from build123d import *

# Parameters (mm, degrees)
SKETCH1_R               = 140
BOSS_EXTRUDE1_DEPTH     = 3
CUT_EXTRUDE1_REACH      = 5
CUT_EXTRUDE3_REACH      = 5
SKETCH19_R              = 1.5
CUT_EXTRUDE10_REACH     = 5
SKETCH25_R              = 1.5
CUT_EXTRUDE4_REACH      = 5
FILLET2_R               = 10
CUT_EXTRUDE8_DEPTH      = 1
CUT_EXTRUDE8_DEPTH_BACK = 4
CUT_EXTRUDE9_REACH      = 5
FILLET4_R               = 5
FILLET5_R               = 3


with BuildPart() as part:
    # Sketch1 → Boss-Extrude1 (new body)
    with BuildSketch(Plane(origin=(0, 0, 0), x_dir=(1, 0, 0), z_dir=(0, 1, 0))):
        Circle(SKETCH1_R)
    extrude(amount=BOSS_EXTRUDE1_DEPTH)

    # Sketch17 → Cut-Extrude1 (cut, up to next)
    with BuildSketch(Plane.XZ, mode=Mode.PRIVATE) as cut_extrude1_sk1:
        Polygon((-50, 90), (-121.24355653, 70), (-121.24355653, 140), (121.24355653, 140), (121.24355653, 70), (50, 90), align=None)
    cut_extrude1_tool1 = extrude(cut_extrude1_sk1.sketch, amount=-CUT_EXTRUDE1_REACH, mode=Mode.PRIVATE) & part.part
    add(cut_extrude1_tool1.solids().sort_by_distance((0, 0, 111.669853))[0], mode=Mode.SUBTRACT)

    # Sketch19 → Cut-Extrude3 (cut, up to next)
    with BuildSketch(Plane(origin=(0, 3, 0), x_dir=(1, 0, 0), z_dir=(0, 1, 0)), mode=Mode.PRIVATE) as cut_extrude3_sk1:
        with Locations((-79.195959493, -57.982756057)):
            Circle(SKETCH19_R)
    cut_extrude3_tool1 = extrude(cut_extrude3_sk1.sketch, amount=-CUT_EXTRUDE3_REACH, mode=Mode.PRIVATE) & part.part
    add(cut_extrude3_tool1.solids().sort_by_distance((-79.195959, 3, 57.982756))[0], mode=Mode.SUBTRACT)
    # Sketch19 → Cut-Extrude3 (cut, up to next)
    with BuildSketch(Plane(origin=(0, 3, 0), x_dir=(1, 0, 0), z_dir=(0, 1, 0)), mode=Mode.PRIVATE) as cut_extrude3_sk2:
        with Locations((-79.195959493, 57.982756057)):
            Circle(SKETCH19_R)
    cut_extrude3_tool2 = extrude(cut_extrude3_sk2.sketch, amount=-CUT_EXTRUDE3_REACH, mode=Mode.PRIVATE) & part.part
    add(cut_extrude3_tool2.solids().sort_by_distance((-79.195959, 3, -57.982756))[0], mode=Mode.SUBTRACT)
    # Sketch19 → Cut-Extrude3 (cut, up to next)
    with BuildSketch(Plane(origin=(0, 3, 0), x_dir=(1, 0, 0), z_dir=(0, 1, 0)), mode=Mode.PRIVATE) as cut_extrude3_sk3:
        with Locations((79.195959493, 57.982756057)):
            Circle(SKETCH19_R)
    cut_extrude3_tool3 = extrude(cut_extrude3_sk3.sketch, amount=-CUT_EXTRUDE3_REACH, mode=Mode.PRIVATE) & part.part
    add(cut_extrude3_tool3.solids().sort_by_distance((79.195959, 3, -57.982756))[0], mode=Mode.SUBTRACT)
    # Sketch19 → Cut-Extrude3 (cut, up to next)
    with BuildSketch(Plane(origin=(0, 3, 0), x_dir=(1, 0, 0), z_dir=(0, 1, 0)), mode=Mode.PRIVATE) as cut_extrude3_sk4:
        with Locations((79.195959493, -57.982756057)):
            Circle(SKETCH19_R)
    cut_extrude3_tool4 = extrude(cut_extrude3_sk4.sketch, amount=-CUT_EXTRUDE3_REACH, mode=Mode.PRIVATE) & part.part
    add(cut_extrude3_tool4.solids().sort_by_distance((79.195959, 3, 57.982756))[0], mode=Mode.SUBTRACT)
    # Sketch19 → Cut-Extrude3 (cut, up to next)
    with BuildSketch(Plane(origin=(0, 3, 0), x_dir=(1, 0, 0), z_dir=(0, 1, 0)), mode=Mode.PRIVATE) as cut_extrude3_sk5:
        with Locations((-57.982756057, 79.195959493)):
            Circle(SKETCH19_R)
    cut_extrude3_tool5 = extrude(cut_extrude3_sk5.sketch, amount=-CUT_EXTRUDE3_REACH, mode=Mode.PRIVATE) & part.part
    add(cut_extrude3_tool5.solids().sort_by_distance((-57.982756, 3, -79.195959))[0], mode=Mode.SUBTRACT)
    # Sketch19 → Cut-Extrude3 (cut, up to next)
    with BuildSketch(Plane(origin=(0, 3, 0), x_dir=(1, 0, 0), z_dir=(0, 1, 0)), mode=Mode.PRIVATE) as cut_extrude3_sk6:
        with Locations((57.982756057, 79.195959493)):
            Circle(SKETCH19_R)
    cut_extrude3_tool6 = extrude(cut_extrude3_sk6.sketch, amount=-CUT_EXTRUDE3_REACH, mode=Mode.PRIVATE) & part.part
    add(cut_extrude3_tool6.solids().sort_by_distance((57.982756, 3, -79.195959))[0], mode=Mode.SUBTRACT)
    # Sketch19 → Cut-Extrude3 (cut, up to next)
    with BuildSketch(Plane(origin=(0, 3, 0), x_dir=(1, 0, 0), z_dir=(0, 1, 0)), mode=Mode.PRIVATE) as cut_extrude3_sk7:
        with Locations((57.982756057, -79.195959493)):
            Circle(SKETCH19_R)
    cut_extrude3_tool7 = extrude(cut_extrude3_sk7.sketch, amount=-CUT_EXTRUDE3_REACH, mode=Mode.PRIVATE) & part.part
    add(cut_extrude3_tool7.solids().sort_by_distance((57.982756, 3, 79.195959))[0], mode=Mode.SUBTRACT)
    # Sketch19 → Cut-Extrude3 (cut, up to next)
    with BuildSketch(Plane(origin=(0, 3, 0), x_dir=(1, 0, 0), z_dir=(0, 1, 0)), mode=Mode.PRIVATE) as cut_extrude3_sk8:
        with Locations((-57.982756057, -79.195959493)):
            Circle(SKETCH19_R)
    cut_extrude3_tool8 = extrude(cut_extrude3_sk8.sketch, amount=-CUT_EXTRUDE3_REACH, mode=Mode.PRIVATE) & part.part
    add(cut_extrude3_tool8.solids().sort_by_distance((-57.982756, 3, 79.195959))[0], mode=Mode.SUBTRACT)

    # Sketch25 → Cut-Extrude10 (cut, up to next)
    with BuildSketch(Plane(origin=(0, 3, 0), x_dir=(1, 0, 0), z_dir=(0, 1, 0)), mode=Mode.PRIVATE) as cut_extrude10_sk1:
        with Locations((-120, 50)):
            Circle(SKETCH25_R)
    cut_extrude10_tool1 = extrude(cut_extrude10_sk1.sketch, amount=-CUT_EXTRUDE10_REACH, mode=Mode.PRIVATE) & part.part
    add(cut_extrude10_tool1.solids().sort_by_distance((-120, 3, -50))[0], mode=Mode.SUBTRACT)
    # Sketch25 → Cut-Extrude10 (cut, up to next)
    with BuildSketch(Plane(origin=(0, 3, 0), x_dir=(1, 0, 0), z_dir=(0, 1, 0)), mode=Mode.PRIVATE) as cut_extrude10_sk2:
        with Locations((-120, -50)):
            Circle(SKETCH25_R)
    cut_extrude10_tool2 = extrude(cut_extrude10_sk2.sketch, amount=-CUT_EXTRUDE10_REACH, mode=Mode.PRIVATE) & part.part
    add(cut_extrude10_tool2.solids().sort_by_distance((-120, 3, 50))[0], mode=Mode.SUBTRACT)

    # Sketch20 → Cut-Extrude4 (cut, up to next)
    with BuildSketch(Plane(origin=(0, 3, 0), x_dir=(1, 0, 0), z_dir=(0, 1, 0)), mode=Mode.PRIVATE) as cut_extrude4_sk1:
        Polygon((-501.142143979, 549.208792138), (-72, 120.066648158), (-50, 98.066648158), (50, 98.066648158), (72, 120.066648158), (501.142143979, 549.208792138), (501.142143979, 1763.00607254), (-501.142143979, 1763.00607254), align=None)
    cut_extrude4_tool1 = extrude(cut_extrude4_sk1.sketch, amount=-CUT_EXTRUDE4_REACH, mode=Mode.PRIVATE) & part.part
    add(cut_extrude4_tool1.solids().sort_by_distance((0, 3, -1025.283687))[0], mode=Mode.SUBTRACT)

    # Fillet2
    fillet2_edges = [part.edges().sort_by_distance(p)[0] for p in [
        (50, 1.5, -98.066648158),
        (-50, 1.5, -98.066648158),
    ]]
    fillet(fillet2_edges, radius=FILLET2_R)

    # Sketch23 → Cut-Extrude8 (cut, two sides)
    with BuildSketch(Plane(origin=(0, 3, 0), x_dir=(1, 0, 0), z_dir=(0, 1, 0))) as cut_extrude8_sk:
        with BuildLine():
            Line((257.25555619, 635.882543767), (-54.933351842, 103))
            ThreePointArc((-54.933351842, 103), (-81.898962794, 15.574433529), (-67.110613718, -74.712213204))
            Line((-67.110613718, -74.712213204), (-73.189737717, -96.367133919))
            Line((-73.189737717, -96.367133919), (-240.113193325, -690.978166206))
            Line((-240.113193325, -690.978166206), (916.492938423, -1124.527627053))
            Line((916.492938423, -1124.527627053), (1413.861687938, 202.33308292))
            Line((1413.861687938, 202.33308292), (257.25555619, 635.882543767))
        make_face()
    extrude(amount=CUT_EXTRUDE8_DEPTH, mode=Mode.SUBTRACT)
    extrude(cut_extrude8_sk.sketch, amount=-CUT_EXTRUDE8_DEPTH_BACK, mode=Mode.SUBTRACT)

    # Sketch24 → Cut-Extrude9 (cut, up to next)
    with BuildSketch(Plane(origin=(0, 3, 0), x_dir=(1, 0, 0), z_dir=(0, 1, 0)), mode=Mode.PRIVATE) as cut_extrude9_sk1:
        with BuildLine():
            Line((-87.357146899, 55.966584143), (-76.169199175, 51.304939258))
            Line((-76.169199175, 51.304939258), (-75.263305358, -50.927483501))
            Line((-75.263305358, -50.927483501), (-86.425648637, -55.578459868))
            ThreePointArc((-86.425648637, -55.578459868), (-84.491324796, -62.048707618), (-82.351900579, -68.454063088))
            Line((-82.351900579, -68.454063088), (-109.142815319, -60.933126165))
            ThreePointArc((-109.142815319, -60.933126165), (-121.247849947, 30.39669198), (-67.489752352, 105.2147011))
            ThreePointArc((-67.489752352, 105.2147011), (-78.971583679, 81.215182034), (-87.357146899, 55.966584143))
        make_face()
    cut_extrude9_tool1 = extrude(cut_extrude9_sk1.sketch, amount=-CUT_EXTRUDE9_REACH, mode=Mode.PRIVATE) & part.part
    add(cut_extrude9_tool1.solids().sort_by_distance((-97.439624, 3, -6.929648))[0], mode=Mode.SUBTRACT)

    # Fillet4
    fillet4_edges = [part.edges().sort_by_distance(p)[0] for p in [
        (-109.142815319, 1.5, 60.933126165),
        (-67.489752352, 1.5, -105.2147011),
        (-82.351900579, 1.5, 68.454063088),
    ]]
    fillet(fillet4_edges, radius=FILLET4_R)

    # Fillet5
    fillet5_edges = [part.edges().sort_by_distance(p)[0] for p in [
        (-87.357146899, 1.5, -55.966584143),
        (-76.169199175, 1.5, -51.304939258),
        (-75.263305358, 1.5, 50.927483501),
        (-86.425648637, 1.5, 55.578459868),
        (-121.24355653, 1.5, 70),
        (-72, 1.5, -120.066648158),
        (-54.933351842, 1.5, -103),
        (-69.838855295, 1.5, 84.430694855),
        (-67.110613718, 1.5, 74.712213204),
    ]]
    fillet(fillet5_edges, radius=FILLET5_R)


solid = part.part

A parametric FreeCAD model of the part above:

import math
import FreeCAD as App
import Part
import Sketcher


def edges_at(feature, points):
    """Names of the edges that pass closest to the given points."""
    edges = feature.Shape.Edges
    near = lambda p: min(range(len(edges)), key=lambda i: edges[i].distToShape(Part.Vertex(*p))[0])
    return sorted({f"Edge{near(p) + 1}" for p in points})


def add_polygon(sketch, points):
    """Adds a closed chain of lines whose ends are joined by coincident constraints."""
    first, n = sketch.GeometryCount, len(points)
    for a, b in zip(points, points[1:] + points[:1]):
        sketch.addGeometry(Part.LineSegment(App.Vector(*a, 0), App.Vector(*b, 0)), False)
    for i in range(n):
        sketch.addConstraint(Sketcher.Constraint("Coincident", first + i, 2, first + (i + 1) % n, 1))

doc = App.newDocument("Part")
body = doc.addObject("PartDesign::Body", "Body")

sketch1 = body.newObject("Sketcher::SketchObject", "Sketch")
sketch1.AttachmentSupport = (doc.getObject("XZ_Plane"), [""])
sketch1.MapMode = "FlatFace"
sketch1.addGeometry(Part.Circle(App.Vector(0, 0, 0), App.Vector(0, 0, 1), 140), False)
sketch1.addConstraint([
    Sketcher.Constraint("Coincident", 0, 3, -1, 1),
    Sketcher.Constraint("Diameter", 0, 280.0),
])
pad1 = body.newObject("PartDesign::Pad", "Pad")
pad1.Profile = sketch1
pad1.Length = 3
pad1.Reversed = True

sketch2 = body.newObject("Sketcher::SketchObject", "Sketch001")
sketch2.AttachmentSupport = (doc.getObject("XZ_Plane"), [""])
sketch2.MapMode = "FlatFace"
add_polygon(sketch2, [(-121.243557, 70), (-50, 90), (50, 90), (121.243557, 70), (121.243557, 140), (-121.243557, 140)])
sketch2.addConstraint([
    Sketcher.Constraint("Horizontal", 1),
    Sketcher.Constraint("Vertical", 3),
    Sketcher.Constraint("Horizontal", 4),
    Sketcher.Constraint("Vertical", 5),
    Sketcher.Constraint("Symmetric", 2, 2, 5, 2, -2),
    Sketcher.Constraint("Equal", 0, 2),
    Sketcher.Constraint("DistanceX", 1, 1, 1, 2, 100.0),
    Sketcher.Constraint("DistanceY", 3, 1, 3, 2, 70.0),
    Sketcher.Constraint("DistanceY", -1, 1, 0, 2, 90.0),
    Sketcher.Constraint("DistanceY", -1, 1, 2, 2, 70.0),
    Sketcher.Constraint("DistanceX", 4, 2, 4, 1, 242.487113),
])
pocket1 = body.newObject("PartDesign::Pocket", "Pocket")
pocket1.Profile = sketch2
pocket1.Type = "UpToFirst"

sketch3 = body.newObject("Sketcher::SketchObject", "Sketch002")
sketch3.AttachmentSupport = (doc.getObject("XZ_Plane"), [""])
sketch3.MapMode = "FlatFace"
sketch3.AttachmentOffset = App.Placement(App.Vector(0, 0, -3), App.Rotation())
sketch3.addGeometry(Part.Circle(App.Vector(-79.195959, 57.982756, 0), App.Vector(0, 0, 1), 1.5), False)
sketch3.addConstraint([
    Sketcher.Constraint("Diameter", 0, 3.0),
    Sketcher.Constraint("DistanceX", 0, 3, -1, 1, 79.195959),
    Sketcher.Constraint("DistanceY", -1, 1, 0, 3, 57.982756),
])
pocket2 = body.newObject("PartDesign::Pocket", "Pocket001")
pocket2.Profile = sketch3
pocket2.Type = "UpToFirst"
pocket2.Reversed = True

sketch4 = body.newObject("Sketcher::SketchObject", "Sketch003")
sketch4.AttachmentSupport = (doc.getObject("XZ_Plane"), [""])
sketch4.MapMode = "FlatFace"
sketch4.AttachmentOffset = App.Placement(App.Vector(0, 0, -3), App.Rotation())
sketch4.addGeometry(Part.Circle(App.Vector(-79.195959, -57.982756, 0), App.Vector(0, 0, 1), 1.5), False)
sketch4.addConstraint([
    Sketcher.Constraint("Diameter", 0, 3.0),
    Sketcher.Constraint("DistanceX", 0, 3, -1, 1, 79.195959),
    Sketcher.Constraint("DistanceY", 0, 3, -1, 1, 57.982756),
])
pocket3 = body.newObject("PartDesign::Pocket", "Pocket002")
pocket3.Profile = sketch4
pocket3.Type = "UpToFirst"
pocket3.Reversed = True

sketch5 = body.newObject("Sketcher::SketchObject", "Sketch004")
sketch5.AttachmentSupport = (doc.getObject("XZ_Plane"), [""])
sketch5.MapMode = "FlatFace"
sketch5.AttachmentOffset = App.Placement(App.Vector(0, 0, -3), App.Rotation())
sketch5.addGeometry(Part.Circle(App.Vector(79.195959, -57.982756, 0), App.Vector(0, 0, 1), 1.5), False)
sketch5.addConstraint([
    Sketcher.Constraint("Diameter", 0, 3.0),
    Sketcher.Constraint("DistanceX", -1, 1, 0, 3, 79.195959),
    Sketcher.Constraint("DistanceY", 0, 3, -1, 1, 57.982756),
])
pocket4 = body.newObject("PartDesign::Pocket", "Pocket003")
pocket4.Profile = sketch5
pocket4.Type = "UpToFirst"
pocket4.Reversed = True

sketch6 = body.newObject("Sketcher::SketchObject", "Sketch005")
sketch6.AttachmentSupport = (doc.getObject("XZ_Plane"), [""])
sketch6.MapMode = "FlatFace"
sketch6.AttachmentOffset = App.Placement(App.Vector(0, 0, -3), App.Rotation())
sketch6.addGeometry(Part.Circle(App.Vector(79.195959, 57.982756, 0), App.Vector(0, 0, 1), 1.5), False)
sketch6.addConstraint([
    Sketcher.Constraint("Diameter", 0, 3.0),
    Sketcher.Constraint("DistanceX", -1, 1, 0, 3, 79.195959),
    Sketcher.Constraint("DistanceY", -1, 1, 0, 3, 57.982756),
])
pocket5 = body.newObject("PartDesign::Pocket", "Pocket004")
pocket5.Profile = sketch6
pocket5.Type = "UpToFirst"
pocket5.Reversed = True

sketch7 = body.newObject("Sketcher::SketchObject", "Sketch006")
sketch7.AttachmentSupport = (doc.getObject("XZ_Plane"), [""])
sketch7.MapMode = "FlatFace"
sketch7.AttachmentOffset = App.Placement(App.Vector(0, 0, -3), App.Rotation())
sketch7.addGeometry(Part.Circle(App.Vector(-57.982756, -79.195959, 0), App.Vector(0, 0, 1), 1.5), False)
sketch7.addConstraint([
    Sketcher.Constraint("Diameter", 0, 3.0),
    Sketcher.Constraint("DistanceY", 0, 3, -1, 1, 79.195959),
    Sketcher.Constraint("DistanceX", 0, 3, -1, 1, 57.982756),
])
pocket6 = body.newObject("PartDesign::Pocket", "Pocket005")
pocket6.Profile = sketch7
pocket6.Type = "UpToFirst"
pocket6.Reversed = True

sketch8 = body.newObject("Sketcher::SketchObject", "Sketch007")
sketch8.AttachmentSupport = (doc.getObject("XZ_Plane"), [""])
sketch8.MapMode = "FlatFace"
sketch8.AttachmentOffset = App.Placement(App.Vector(0, 0, -3), App.Rotation())
sketch8.addGeometry(Part.Circle(App.Vector(57.982756, -79.195959, 0), App.Vector(0, 0, 1), 1.5), False)
sketch8.addConstraint([
    Sketcher.Constraint("Diameter", 0, 3.0),
    Sketcher.Constraint("DistanceY", 0, 3, -1, 1, 79.195959),
    Sketcher.Constraint("DistanceX", -1, 1, 0, 3, 57.982756),
])
pocket7 = body.newObject("PartDesign::Pocket", "Pocket006")
pocket7.Profile = sketch8
pocket7.Type = "UpToFirst"
pocket7.Reversed = True

sketch9 = body.newObject("Sketcher::SketchObject", "Sketch008")
sketch9.AttachmentSupport = (doc.getObject("XZ_Plane"), [""])
sketch9.MapMode = "FlatFace"
sketch9.AttachmentOffset = App.Placement(App.Vector(0, 0, -3), App.Rotation())
sketch9.addGeometry(Part.Circle(App.Vector(57.982756, 79.195959, 0), App.Vector(0, 0, 1), 1.5), False)
sketch9.addConstraint([
    Sketcher.Constraint("Diameter", 0, 3.0),
    Sketcher.Constraint("DistanceY", -1, 1, 0, 3, 79.195959),
    Sketcher.Constraint("DistanceX", -1, 1, 0, 3, 57.982756),
])
pocket8 = body.newObject("PartDesign::Pocket", "Pocket007")
pocket8.Profile = sketch9
pocket8.Type = "UpToFirst"
pocket8.Reversed = True

sketch10 = body.newObject("Sketcher::SketchObject", "Sketch009")
sketch10.AttachmentSupport = (doc.getObject("XZ_Plane"), [""])
sketch10.MapMode = "FlatFace"
sketch10.AttachmentOffset = App.Placement(App.Vector(0, 0, -3), App.Rotation())
sketch10.addGeometry(Part.Circle(App.Vector(-57.982756, 79.195959, 0), App.Vector(0, 0, 1), 1.5), False)
sketch10.addConstraint([
    Sketcher.Constraint("Diameter", 0, 3.0),
    Sketcher.Constraint("DistanceY", -1, 1, 0, 3, 79.195959),
    Sketcher.Constraint("DistanceX", 0, 3, -1, 1, 57.982756),
])
pocket9 = body.newObject("PartDesign::Pocket", "Pocket008")
pocket9.Profile = sketch10
pocket9.Type = "UpToFirst"
pocket9.Reversed = True

sketch11 = body.newObject("Sketcher::SketchObject", "Sketch010")
sketch11.AttachmentSupport = (doc.getObject("XZ_Plane"), [""])
sketch11.MapMode = "FlatFace"
sketch11.AttachmentOffset = App.Placement(App.Vector(0, 0, -3), App.Rotation())
sketch11.addGeometry(Part.Circle(App.Vector(-120, -50, 0), App.Vector(0, 0, 1), 1.5), False)
sketch11.addConstraint([
    Sketcher.Constraint("Diameter", 0, 3.0),
    Sketcher.Constraint("DistanceX", 0, 3, -1, 1, 120.0),
    Sketcher.Constraint("DistanceY", 0, 3, -1, 1, 50.0),
])
pocket10 = body.newObject("PartDesign::Pocket", "Pocket009")
pocket10.Profile = sketch11
pocket10.Type = "UpToFirst"
pocket10.Reversed = True

sketch12 = body.newObject("Sketcher::SketchObject", "Sketch011")
sketch12.AttachmentSupport = (doc.getObject("XZ_Plane"), [""])
sketch12.MapMode = "FlatFace"
sketch12.AttachmentOffset = App.Placement(App.Vector(0, 0, -3), App.Rotation())
sketch12.addGeometry(Part.Circle(App.Vector(-120, 50, 0), App.Vector(0, 0, 1), 1.5), False)
sketch12.addConstraint([
    Sketcher.Constraint("Diameter", 0, 3.0),
    Sketcher.Constraint("DistanceX", 0, 3, -1, 1, 120.0),
    Sketcher.Constraint("DistanceY", -1, 1, 0, 3, 50.0),
])
pocket11 = body.newObject("PartDesign::Pocket", "Pocket010")
pocket11.Profile = sketch12
pocket11.Type = "UpToFirst"
pocket11.Reversed = True

sketch13 = body.newObject("Sketcher::SketchObject", "Sketch012")
sketch13.AttachmentSupport = (doc.getObject("XZ_Plane"), [""])
sketch13.MapMode = "FlatFace"
sketch13.AttachmentOffset = App.Placement(App.Vector(0, 0, -3), App.Rotation())
add_polygon(sketch13, [(-501.142144, -549.208792), (-72, -120.066648), (-50, -98.066648), (50, -98.066648), (72, -120.066648), (501.142144, -549.208792), (501.142144, -1763.006073), (-501.142144, -1763.006073)])
sketch13.addConstraint([
    Sketcher.Constraint("Horizontal", 2),
    Sketcher.Constraint("Vertical", 5),
    Sketcher.Constraint("Horizontal", 6),
    Sketcher.Constraint("Vertical", 7),
    Sketcher.Constraint("Symmetric", 0, 2, 3, 2, -2),
    Sketcher.Constraint("Symmetric", 4, 2, 7, 2, -2),
    Sketcher.Constraint("Parallel", 0, 1),
    Sketcher.Constraint("Perpendicular", 1, 3),
    Sketcher.Constraint("Parallel", 3, 4),
    Sketcher.Constraint("DistanceX", 2, 1, 2, 2, 100.0),
    Sketcher.Constraint("DistanceX", 0, 2, -1, 1, 72.0),
    Sketcher.Constraint("DistanceY", 5, 2, 5, 1, 1213.79728),
    Sketcher.Constraint("Distance", 0, 606.89864),
    Sketcher.Constraint("DistanceY", 0, 2, -1, 1, 120.066648),
])
pocket12 = body.newObject("PartDesign::Pocket", "Pocket011")
pocket12.Profile = sketch13
pocket12.Length = 3
pocket12.Reversed = True
doc.recompute()

fillet = body.newObject("PartDesign::Fillet", "Fillet")
fillet.Base = (pocket12, edges_at(pocket12, [(50, 1.5, -98.067), (-50, 1.5, -98.067)]))
fillet.Radius = 10

sketch14 = body.newObject("Sketcher::SketchObject", "Sketch013")
sketch14.AttachmentSupport = (doc.getObject("XZ_Plane"), [""])
sketch14.MapMode = "FlatFace"
sketch14.AttachmentOffset = App.Placement(App.Vector(0, 0, -3), App.Rotation())
sketch14.addGeometry([
    Part.LineSegment(App.Vector(257.255556, -635.882544, 0), App.Vector(-54.933352, -103, 0)),
    Part.ArcOfCircle(Part.Circle(App.Vector(117.633153, -1.90202, 0), App.Vector(0, 0, 1), 200), math.radians(157.475952), math.radians(210.363878)),
    Part.LineSegment(App.Vector(-67.110614, 74.712213, 0), App.Vector(-73.189738, 96.367134, 0)),
    Part.LineSegment(App.Vector(-73.189738, 96.367134, 0), App.Vector(-240.113193, 690.978166, 0)),
    Part.LineSegment(App.Vector(-240.113193, 690.978166, 0), App.Vector(916.492938, 1124.527627, 0)),
    Part.LineSegment(App.Vector(916.492938, 1124.527627, 0), App.Vector(1413.861688, -202.333083, 0)),
    Part.LineSegment(App.Vector(1413.861688, -202.333083, 0), App.Vector(257.255556, -635.882544, 0)),
], False)
sketch14.addConstraint([
    Sketcher.Constraint("Tangent", 0, 2, 1, 2),
    Sketcher.Constraint("Coincident", 1, 1, 2, 1),
    Sketcher.Constraint("Coincident", 2, 2, 3, 1),
    Sketcher.Constraint("Coincident", 3, 2, 4, 1),
    Sketcher.Constraint("Coincident", 4, 2, 5, 1),
    Sketcher.Constraint("Coincident", 5, 2, 6, 1),
    Sketcher.Constraint("Coincident", 6, 2, 0, 1),
    Sketcher.Constraint("Parallel", 2, 3),
    Sketcher.Constraint("Perpendicular", 4, 5),
    Sketcher.Constraint("Perpendicular", 5, 6),
    Sketcher.Constraint("Equal", 0, 3),
    Sketcher.Constraint("Equal", 4, 6),
    Sketcher.Constraint("Radius", 1, 200.0),
    Sketcher.Constraint("DistanceY", 0, 2, -1, 1, 103.0),
    Sketcher.Constraint("DistanceX", 1, 1, 5, 2, 1480.972302),
    Sketcher.Constraint("Distance", 0, 617.596729),
    Sketcher.Constraint("Distance", 2, 22.492028),
    Sketcher.Constraint("Distance", 4, 1235.193458),
    Sketcher.Constraint("DistanceY", 1, 3, -1, 1, 1.90202),
    Sketcher.Constraint("DistanceX", 0, 2, -1, 1, 54.933352),
    Sketcher.Constraint("DistanceX", -1, 1, 4, 2, 916.492938),
])
pocket13 = body.newObject("PartDesign::Pocket", "Pocket012")
pocket13.Profile = sketch14
pocket13.Type = "ThroughAll"
pocket13.Midplane = True

sketch15 = body.newObject("Sketcher::SketchObject", "Sketch014")
sketch15.AttachmentSupport = (doc.getObject("XZ_Plane"), [""])
sketch15.MapMode = "FlatFace"
sketch15.AttachmentOffset = App.Placement(App.Vector(0, 0, -3), App.Rotation())
sketch15.addGeometry([
    Part.LineSegment(App.Vector(-76.169199, -51.304939, 0), App.Vector(-87.357147, -55.966584, 0)),
    Part.ArcOfCircle(Part.Circle(App.Vector(117.633153, -1.90202, 0), App.Vector(0, 0, 1), 212), math.radians(-165.225139), math.radians(-150.835155)),
    Part.ArcOfCircle(Part.Circle(App.Vector(0, 0, 0), App.Vector(0, 0, 1), 125), math.radians(150.8259), math.radians(237.321942)),
    Part.LineSegment(App.Vector(-109.142815, 60.933126, 0), App.Vector(-82.351901, 68.454063, 0)),
    Part.ArcOfCircle(Part.Circle(App.Vector(117.633152, -1.90202, 0), App.Vector(0, 0, 1), 211.999999), math.radians(160.617786), math.radians(164.268222)),
    Part.LineSegment(App.Vector(-86.425649, 55.57846, 0), App.Vector(-75.263305, 50.927484, 0)),
    Part.LineSegment(App.Vector(-75.263305, 50.927484, 0), App.Vector(-76.169199, -51.304939, 0)),
], False)
sketch15.addConstraint([
    Sketcher.Constraint("Coincident", 0, 2, 1, 1),
    Sketcher.Constraint("Coincident", 1, 2, 2, 2),
    Sketcher.Constraint("Coincident", 2, 1, 3, 1),
    Sketcher.Constraint("Coincident", 3, 2, 4, 1),
    Sketcher.Constraint("Coincident", 4, 2, 5, 1),
    Sketcher.Constraint("Coincident", 5, 2, 6, 1),
    Sketcher.Constraint("Coincident", 6, 2, 0, 1),
    Sketcher.Constraint("Coincident", 2, 3, -1, 1),
    Sketcher.Constraint("Coincident", 4, 3, 1, 3),
    Sketcher.Constraint("Equal", 1, 4),
    Sketcher.Constraint("Radius", 1, 212.0),
    Sketcher.Constraint("Radius", 2, 125.0),
    Sketcher.Constraint("DistanceY", 1, 2, -1, 1, 105.214701),
    Sketcher.Constraint("DistanceX", 3, 2, -1, 1, 82.351901),
    Sketcher.Constraint("DistanceX", 6, 2, -1, 1, 76.169199),
    Sketcher.Constraint("DistanceX", 0, 2, 4, 3, 204.990299),
    Sketcher.Constraint("DistanceX", 0, 2, 4, 2, 0.931498),
    Sketcher.Constraint("DistanceY", 6, 2, 4, 2, 106.883399),
    Sketcher.Constraint("Distance", 5, 12.092539),
    Sketcher.Constraint("DistanceY", 1, 3, -1, 1, 1.90202),
    Sketcher.Constraint("DistanceX", 2, 1, 0, 2, 21.785668),
    Sketcher.Constraint("DistanceY", 5, 2, 3, 2, 17.52658),
])
pocket14 = body.newObject("PartDesign::Pocket", "Pocket013")
pocket14.Profile = sketch15
pocket14.Type = "UpToFirst"
pocket14.Reversed = True
doc.recompute()

fillet2 = body.newObject("PartDesign::Fillet", "Fillet001")
fillet2.Base = (pocket14, edges_at(pocket14, [(-109.143, 1.5, 60.933), (-67.49, 1.5, -105.215), (-82.352, 1.5, 68.454)]))
fillet2.Radius = 5
doc.recompute()

fillet3 = body.newObject("PartDesign::Fillet", "Fillet002")
fillet3.Base = (fillet2, edges_at(fillet2, [
    (-87.357, 1.5, -55.967),
    (-76.169, 1.5, -51.305),
    (-75.263, 1.5, 50.927),
    (-86.426, 1.5, 55.578),
    (-121.244, 1.5, 70),
    (-72, 1.5, -120.067),
    (-54.933, 1.5, -103),
    (-69.839, 1.5, 84.431),
    (-67.111, 1.5, 74.712),
]))
fillet3.Radius = 3

doc.recompute()
